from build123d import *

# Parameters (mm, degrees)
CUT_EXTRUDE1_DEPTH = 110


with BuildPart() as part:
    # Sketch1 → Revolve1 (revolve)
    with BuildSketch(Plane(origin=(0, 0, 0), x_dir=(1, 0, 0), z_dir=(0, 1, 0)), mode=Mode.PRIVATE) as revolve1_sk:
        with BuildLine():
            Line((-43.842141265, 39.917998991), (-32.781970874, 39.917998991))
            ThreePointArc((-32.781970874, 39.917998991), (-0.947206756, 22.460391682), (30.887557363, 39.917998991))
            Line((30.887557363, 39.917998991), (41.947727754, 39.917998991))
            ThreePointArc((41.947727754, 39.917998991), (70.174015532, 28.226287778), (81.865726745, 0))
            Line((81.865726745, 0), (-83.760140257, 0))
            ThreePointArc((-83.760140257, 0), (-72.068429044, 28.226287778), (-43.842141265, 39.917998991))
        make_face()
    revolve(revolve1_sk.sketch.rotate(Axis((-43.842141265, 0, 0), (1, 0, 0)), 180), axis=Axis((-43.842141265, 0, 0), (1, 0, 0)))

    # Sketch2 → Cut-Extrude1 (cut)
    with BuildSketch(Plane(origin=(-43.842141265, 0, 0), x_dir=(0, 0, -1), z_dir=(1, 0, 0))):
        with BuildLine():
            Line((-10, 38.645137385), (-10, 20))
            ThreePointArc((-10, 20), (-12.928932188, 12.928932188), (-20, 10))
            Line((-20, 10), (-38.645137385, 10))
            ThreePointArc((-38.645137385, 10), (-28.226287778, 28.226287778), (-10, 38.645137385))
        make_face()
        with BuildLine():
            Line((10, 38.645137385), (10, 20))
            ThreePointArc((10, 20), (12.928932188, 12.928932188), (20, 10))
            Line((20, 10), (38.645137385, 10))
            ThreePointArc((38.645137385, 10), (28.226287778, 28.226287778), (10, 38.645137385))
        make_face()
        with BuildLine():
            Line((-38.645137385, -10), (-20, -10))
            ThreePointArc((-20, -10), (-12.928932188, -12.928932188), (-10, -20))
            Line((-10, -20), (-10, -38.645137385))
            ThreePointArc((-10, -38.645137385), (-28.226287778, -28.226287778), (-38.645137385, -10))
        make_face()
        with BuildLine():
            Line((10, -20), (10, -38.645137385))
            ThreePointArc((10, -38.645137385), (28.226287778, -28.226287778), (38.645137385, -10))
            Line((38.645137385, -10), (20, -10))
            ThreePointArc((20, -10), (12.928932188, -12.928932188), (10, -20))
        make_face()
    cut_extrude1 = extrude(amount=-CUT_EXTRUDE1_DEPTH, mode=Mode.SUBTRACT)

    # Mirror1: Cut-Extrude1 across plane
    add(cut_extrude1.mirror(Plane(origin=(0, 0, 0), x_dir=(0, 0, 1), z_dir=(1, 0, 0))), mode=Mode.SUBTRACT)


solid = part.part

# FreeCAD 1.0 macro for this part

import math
import FreeCAD as App
import Part
import Sketcher
from FreeCAD import Vector

doc = App.newDocument("Part")
body = doc.addObject("PartDesign::Body", "Body")

# Sketch on XZ plane
sketch1 = body.newObject("Sketcher::SketchObject", "Sketch")
sketch1.AttachmentSupport = (doc.getObject("XZ_Plane"), [""])
sketch1.MapMode = "FlatFace"
sketch1.addGeometry([
    Part.LineSegment(Vector(-33, -40, 0), Vector(-44, -40, 0)),  # 0
    Part.ArcOfCircle(Part.Circle(Vector(-44, 0, 0), Vector(0, 0, 1), 40), math.radians(180), math.radians(270)),  # 1
    Part.LineSegment(Vector(-84, 0, 0), Vector(82, 0, 0)),  # 2
    Part.ArcOfCircle(Part.Circle(Vector(42, 0, 0), Vector(0, 0, 1), 40), math.radians(-90), math.radians(0)),  # 3
    Part.LineSegment(Vector(42, -40, 0), Vector(31, -40, 0)),  # 4
    Part.ArcOfCircle(Part.Circle(Vector(-1, -60, 0), Vector(0, 0, 1), 38), math.radians(33), math.radians(147)),  # 5
], False)
sketch1.addConstraint([
    Sketcher.Constraint("Tangent", 0, 2, 1, 2),
    Sketcher.Constraint("Coincident", 1, 1, 2, 1),
    Sketcher.Constraint("Coincident", 2, 2, 3, 2),
    Sketcher.Constraint("Tangent", 3, 1, 4, 1),
    Sketcher.Constraint("Coincident", 4, 2, 5, 1),
    Sketcher.Constraint("Coincident", 5, 2, 0, 1),
    Sketcher.Constraint("Horizontal", 0),
    Sketcher.Constraint("Horizontal", 2),
    Sketcher.Constraint("Horizontal", 4),
    Sketcher.Constraint("Equal", 1, 3),
    Sketcher.Constraint("PointOnObject", 1, 3, -1),
    Sketcher.Constraint("PointOnObject", 3, 3, -1),
    Sketcher.Constraint("PointOnObject", 1, 1, -1),
    Sketcher.Constraint("Equal", 0, 4),
    Sketcher.Constraint("Radius", 1, 39.917999),
    Sketcher.Constraint("Radius", 5, 37.754895),
    Sketcher.Constraint("DistanceX", 0, 2, 0, 1, 11.06017),
    Sketcher.Constraint("DistanceX", 0, 2, 4, 2, 74.729699),
    Sketcher.Constraint("DistanceX", 1, 3, -1, 1, 43.842141),
])
revolution = body.newObject("PartDesign::Revolution", "Revolution")
revolution.Profile = sketch1
revolution.ReferenceAxis = (sketch1, ["H_Axis"])
revolution.Angle = 360

# Sketch on YZ plane
sketch2 = body.newObject("Sketcher::SketchObject", "Sketch001")
sketch2.AttachmentSupport = (doc.getObject("YZ_Plane"), [""])
sketch2.MapMode = "FlatFace"
sketch2.AttachmentOffset = App.Placement(Vector(0, 0, -43.842141), App.Rotation())
sketch2.addGeometry([
    Part.LineSegment(Vector(20, 10, 0), Vector(39, 10, 0)),  # 0
    Part.ArcOfCircle(Part.Circle(Vector(0, 0, 0), Vector(0, 0, 1), 40), math.radians(15), math.radians(75)),  # 1
    Part.LineSegment(Vector(10, 39, 0), Vector(10, 20, 0)),  # 2
    Part.ArcOfCircle(Part.Circle(Vector(20, 20, 0), Vector(0, 0, 1), 10), math.radians(180), math.radians(270)),  # 3
    Part.LineSegment(Vector(39, -10, 0), Vector(20, -10, 0)),  # 4
    Part.ArcOfCircle(Part.Circle(Vector(20, -20, 0), Vector(0, 0, 1), 10), math.radians(90), math.radians(180)),  # 5
    Part.LineSegment(Vector(10, -20, 0), Vector(10, -39, 0)),  # 6
    Part.ArcOfCircle(Part.Circle(Vector(0, 0, 0), Vector(0, 0, 1), 40), math.radians(-75), math.radians(-15)),  # 7
    Part.LineSegment(Vector(-10, 20, 0), Vector(-10, 39, 0)),  # 8
    Part.ArcOfCircle(Part.Circle(Vector(0, 0, 0), Vector(0, 0, 1), 40), math.radians(105), math.radians(165)),  # 9
    Part.LineSegment(Vector(-39, 10, 0), Vector(-20, 10, 0)),  # 10
    Part.ArcOfCircle(Part.Circle(Vector(-20, 20, 0), Vector(0, 0, 1), 10), math.radians(-90), math.radians(0)),  # 11
    Part.LineSegment(Vector(-20, -10, 0), Vector(-39, -10, 0)),  # 12
    Part.ArcOfCircle(Part.Circle(Vector(0, 0, 0), Vector(0, 0, 1), 40), math.radians(-165), math.radians(-105)),  # 13
    Part.LineSegment(Vector(-10, -39, 0), Vector(-10, -20, 0)),  # 14
    Part.ArcOfCircle(Part.Circle(Vector(-20, -20, 0), Vector(0, 0, 1), 10), math.radians(0), math.radians(90)),  # 15
], False)
sketch2.addConstraint([
    Sketcher.Constraint("Coincident", 0, 2, 1, 1),
    Sketcher.Constraint("Coincident", 1, 2, 2, 1),
    Sketcher.Constraint("Tangent", 2, 2, 3, 1),
    Sketcher.Constraint("Tangent", 3, 2, 0, 1),
    Sketcher.Constraint("Tangent", 4, 2, 5, 1),
    Sketcher.Constraint("Tangent", 5, 2, 6, 1),
    Sketcher.Constraint("Coincident", 6, 2, 7, 1),
    Sketcher.Constraint("Coincident", 7, 2, 4, 1),
    Sketcher.Constraint("Coincident", 8, 2, 9, 1),
    Sketcher.Constraint("Coincident", 9, 2, 10, 1),
    Sketcher.Constraint("Tangent", 10, 2, 11, 1),
    Sketcher.Constraint("Tangent", 11, 2, 8, 1),
    Sketcher.Constraint("Coincident", 12, 2, 13, 1),
    Sketcher.Constraint("Coincident", 13, 2, 14, 1),
    Sketcher.Constraint("Tangent", 14, 2, 15, 1),
    Sketcher.Constraint("Tangent", 15, 2, 12, 1),
    Sketcher.Constraint("Horizontal", 0),
    Sketcher.Constraint("Vertical", 2),
    Sketcher.Constraint("Horizontal", 4),
    Sketcher.Constraint("Vertical", 6),
    Sketcher.Constraint("Vertical", 8),
    Sketcher.Constraint("Horizontal", 10),
    Sketcher.Constraint("Horizontal", 12),
    Sketcher.Constraint("Vertical", 14),
    Sketcher.Constraint("Coincident", 1, 3, -1, 1),
    Sketcher.Constraint("Coincident", 7, 3, -1, 1),
    Sketcher.Constraint("Coincident", 9, 3, -1, 1),
    Sketcher.Constraint("Coincident", 13, 3, -1, 1),
    Sketcher.Constraint("Equal", 3, 5),
    Sketcher.Constraint("Equal", 1, 7),
    Sketcher.Constraint("Equal", 7, 9),
    Sketcher.Constraint("Equal", 5, 11),
    Sketcher.Constraint("Equal", 9, 13),
    Sketcher.Constraint("Equal", 11, 15),
    Sketcher.Constraint("Symmetric", 5, 3, 11, 3, -1, 1),
    Sketcher.Constraint("Symmetric", 3, 3, 15, 3, -1, 1),
    Sketcher.Constraint("Symmetric", 3, 3, 11, 3, -2),
    Sketcher.Constraint("Equal", 12, 2),
    Sketcher.Constraint("Radius", 3, 10.0),
    Sketcher.Constraint("DistanceX", -1, 1, 3, 3, 20.0),
    Sketcher.Constraint("Radius", 1, 39.917999),
])
pocket1 = body.newObject("PartDesign::Pocket", "Pocket")
pocket1.Profile = sketch2
pocket1.Length = 110
doc.recompute()

mirrored = body.newObject("PartDesign::Mirrored", "Mirrored")
mirrored.Originals = [pocket1]
mirrored.MirrorPlane = (doc.getObject("YZ_Plane"), [""])
body.Tip = mirrored

doc.recompute()
